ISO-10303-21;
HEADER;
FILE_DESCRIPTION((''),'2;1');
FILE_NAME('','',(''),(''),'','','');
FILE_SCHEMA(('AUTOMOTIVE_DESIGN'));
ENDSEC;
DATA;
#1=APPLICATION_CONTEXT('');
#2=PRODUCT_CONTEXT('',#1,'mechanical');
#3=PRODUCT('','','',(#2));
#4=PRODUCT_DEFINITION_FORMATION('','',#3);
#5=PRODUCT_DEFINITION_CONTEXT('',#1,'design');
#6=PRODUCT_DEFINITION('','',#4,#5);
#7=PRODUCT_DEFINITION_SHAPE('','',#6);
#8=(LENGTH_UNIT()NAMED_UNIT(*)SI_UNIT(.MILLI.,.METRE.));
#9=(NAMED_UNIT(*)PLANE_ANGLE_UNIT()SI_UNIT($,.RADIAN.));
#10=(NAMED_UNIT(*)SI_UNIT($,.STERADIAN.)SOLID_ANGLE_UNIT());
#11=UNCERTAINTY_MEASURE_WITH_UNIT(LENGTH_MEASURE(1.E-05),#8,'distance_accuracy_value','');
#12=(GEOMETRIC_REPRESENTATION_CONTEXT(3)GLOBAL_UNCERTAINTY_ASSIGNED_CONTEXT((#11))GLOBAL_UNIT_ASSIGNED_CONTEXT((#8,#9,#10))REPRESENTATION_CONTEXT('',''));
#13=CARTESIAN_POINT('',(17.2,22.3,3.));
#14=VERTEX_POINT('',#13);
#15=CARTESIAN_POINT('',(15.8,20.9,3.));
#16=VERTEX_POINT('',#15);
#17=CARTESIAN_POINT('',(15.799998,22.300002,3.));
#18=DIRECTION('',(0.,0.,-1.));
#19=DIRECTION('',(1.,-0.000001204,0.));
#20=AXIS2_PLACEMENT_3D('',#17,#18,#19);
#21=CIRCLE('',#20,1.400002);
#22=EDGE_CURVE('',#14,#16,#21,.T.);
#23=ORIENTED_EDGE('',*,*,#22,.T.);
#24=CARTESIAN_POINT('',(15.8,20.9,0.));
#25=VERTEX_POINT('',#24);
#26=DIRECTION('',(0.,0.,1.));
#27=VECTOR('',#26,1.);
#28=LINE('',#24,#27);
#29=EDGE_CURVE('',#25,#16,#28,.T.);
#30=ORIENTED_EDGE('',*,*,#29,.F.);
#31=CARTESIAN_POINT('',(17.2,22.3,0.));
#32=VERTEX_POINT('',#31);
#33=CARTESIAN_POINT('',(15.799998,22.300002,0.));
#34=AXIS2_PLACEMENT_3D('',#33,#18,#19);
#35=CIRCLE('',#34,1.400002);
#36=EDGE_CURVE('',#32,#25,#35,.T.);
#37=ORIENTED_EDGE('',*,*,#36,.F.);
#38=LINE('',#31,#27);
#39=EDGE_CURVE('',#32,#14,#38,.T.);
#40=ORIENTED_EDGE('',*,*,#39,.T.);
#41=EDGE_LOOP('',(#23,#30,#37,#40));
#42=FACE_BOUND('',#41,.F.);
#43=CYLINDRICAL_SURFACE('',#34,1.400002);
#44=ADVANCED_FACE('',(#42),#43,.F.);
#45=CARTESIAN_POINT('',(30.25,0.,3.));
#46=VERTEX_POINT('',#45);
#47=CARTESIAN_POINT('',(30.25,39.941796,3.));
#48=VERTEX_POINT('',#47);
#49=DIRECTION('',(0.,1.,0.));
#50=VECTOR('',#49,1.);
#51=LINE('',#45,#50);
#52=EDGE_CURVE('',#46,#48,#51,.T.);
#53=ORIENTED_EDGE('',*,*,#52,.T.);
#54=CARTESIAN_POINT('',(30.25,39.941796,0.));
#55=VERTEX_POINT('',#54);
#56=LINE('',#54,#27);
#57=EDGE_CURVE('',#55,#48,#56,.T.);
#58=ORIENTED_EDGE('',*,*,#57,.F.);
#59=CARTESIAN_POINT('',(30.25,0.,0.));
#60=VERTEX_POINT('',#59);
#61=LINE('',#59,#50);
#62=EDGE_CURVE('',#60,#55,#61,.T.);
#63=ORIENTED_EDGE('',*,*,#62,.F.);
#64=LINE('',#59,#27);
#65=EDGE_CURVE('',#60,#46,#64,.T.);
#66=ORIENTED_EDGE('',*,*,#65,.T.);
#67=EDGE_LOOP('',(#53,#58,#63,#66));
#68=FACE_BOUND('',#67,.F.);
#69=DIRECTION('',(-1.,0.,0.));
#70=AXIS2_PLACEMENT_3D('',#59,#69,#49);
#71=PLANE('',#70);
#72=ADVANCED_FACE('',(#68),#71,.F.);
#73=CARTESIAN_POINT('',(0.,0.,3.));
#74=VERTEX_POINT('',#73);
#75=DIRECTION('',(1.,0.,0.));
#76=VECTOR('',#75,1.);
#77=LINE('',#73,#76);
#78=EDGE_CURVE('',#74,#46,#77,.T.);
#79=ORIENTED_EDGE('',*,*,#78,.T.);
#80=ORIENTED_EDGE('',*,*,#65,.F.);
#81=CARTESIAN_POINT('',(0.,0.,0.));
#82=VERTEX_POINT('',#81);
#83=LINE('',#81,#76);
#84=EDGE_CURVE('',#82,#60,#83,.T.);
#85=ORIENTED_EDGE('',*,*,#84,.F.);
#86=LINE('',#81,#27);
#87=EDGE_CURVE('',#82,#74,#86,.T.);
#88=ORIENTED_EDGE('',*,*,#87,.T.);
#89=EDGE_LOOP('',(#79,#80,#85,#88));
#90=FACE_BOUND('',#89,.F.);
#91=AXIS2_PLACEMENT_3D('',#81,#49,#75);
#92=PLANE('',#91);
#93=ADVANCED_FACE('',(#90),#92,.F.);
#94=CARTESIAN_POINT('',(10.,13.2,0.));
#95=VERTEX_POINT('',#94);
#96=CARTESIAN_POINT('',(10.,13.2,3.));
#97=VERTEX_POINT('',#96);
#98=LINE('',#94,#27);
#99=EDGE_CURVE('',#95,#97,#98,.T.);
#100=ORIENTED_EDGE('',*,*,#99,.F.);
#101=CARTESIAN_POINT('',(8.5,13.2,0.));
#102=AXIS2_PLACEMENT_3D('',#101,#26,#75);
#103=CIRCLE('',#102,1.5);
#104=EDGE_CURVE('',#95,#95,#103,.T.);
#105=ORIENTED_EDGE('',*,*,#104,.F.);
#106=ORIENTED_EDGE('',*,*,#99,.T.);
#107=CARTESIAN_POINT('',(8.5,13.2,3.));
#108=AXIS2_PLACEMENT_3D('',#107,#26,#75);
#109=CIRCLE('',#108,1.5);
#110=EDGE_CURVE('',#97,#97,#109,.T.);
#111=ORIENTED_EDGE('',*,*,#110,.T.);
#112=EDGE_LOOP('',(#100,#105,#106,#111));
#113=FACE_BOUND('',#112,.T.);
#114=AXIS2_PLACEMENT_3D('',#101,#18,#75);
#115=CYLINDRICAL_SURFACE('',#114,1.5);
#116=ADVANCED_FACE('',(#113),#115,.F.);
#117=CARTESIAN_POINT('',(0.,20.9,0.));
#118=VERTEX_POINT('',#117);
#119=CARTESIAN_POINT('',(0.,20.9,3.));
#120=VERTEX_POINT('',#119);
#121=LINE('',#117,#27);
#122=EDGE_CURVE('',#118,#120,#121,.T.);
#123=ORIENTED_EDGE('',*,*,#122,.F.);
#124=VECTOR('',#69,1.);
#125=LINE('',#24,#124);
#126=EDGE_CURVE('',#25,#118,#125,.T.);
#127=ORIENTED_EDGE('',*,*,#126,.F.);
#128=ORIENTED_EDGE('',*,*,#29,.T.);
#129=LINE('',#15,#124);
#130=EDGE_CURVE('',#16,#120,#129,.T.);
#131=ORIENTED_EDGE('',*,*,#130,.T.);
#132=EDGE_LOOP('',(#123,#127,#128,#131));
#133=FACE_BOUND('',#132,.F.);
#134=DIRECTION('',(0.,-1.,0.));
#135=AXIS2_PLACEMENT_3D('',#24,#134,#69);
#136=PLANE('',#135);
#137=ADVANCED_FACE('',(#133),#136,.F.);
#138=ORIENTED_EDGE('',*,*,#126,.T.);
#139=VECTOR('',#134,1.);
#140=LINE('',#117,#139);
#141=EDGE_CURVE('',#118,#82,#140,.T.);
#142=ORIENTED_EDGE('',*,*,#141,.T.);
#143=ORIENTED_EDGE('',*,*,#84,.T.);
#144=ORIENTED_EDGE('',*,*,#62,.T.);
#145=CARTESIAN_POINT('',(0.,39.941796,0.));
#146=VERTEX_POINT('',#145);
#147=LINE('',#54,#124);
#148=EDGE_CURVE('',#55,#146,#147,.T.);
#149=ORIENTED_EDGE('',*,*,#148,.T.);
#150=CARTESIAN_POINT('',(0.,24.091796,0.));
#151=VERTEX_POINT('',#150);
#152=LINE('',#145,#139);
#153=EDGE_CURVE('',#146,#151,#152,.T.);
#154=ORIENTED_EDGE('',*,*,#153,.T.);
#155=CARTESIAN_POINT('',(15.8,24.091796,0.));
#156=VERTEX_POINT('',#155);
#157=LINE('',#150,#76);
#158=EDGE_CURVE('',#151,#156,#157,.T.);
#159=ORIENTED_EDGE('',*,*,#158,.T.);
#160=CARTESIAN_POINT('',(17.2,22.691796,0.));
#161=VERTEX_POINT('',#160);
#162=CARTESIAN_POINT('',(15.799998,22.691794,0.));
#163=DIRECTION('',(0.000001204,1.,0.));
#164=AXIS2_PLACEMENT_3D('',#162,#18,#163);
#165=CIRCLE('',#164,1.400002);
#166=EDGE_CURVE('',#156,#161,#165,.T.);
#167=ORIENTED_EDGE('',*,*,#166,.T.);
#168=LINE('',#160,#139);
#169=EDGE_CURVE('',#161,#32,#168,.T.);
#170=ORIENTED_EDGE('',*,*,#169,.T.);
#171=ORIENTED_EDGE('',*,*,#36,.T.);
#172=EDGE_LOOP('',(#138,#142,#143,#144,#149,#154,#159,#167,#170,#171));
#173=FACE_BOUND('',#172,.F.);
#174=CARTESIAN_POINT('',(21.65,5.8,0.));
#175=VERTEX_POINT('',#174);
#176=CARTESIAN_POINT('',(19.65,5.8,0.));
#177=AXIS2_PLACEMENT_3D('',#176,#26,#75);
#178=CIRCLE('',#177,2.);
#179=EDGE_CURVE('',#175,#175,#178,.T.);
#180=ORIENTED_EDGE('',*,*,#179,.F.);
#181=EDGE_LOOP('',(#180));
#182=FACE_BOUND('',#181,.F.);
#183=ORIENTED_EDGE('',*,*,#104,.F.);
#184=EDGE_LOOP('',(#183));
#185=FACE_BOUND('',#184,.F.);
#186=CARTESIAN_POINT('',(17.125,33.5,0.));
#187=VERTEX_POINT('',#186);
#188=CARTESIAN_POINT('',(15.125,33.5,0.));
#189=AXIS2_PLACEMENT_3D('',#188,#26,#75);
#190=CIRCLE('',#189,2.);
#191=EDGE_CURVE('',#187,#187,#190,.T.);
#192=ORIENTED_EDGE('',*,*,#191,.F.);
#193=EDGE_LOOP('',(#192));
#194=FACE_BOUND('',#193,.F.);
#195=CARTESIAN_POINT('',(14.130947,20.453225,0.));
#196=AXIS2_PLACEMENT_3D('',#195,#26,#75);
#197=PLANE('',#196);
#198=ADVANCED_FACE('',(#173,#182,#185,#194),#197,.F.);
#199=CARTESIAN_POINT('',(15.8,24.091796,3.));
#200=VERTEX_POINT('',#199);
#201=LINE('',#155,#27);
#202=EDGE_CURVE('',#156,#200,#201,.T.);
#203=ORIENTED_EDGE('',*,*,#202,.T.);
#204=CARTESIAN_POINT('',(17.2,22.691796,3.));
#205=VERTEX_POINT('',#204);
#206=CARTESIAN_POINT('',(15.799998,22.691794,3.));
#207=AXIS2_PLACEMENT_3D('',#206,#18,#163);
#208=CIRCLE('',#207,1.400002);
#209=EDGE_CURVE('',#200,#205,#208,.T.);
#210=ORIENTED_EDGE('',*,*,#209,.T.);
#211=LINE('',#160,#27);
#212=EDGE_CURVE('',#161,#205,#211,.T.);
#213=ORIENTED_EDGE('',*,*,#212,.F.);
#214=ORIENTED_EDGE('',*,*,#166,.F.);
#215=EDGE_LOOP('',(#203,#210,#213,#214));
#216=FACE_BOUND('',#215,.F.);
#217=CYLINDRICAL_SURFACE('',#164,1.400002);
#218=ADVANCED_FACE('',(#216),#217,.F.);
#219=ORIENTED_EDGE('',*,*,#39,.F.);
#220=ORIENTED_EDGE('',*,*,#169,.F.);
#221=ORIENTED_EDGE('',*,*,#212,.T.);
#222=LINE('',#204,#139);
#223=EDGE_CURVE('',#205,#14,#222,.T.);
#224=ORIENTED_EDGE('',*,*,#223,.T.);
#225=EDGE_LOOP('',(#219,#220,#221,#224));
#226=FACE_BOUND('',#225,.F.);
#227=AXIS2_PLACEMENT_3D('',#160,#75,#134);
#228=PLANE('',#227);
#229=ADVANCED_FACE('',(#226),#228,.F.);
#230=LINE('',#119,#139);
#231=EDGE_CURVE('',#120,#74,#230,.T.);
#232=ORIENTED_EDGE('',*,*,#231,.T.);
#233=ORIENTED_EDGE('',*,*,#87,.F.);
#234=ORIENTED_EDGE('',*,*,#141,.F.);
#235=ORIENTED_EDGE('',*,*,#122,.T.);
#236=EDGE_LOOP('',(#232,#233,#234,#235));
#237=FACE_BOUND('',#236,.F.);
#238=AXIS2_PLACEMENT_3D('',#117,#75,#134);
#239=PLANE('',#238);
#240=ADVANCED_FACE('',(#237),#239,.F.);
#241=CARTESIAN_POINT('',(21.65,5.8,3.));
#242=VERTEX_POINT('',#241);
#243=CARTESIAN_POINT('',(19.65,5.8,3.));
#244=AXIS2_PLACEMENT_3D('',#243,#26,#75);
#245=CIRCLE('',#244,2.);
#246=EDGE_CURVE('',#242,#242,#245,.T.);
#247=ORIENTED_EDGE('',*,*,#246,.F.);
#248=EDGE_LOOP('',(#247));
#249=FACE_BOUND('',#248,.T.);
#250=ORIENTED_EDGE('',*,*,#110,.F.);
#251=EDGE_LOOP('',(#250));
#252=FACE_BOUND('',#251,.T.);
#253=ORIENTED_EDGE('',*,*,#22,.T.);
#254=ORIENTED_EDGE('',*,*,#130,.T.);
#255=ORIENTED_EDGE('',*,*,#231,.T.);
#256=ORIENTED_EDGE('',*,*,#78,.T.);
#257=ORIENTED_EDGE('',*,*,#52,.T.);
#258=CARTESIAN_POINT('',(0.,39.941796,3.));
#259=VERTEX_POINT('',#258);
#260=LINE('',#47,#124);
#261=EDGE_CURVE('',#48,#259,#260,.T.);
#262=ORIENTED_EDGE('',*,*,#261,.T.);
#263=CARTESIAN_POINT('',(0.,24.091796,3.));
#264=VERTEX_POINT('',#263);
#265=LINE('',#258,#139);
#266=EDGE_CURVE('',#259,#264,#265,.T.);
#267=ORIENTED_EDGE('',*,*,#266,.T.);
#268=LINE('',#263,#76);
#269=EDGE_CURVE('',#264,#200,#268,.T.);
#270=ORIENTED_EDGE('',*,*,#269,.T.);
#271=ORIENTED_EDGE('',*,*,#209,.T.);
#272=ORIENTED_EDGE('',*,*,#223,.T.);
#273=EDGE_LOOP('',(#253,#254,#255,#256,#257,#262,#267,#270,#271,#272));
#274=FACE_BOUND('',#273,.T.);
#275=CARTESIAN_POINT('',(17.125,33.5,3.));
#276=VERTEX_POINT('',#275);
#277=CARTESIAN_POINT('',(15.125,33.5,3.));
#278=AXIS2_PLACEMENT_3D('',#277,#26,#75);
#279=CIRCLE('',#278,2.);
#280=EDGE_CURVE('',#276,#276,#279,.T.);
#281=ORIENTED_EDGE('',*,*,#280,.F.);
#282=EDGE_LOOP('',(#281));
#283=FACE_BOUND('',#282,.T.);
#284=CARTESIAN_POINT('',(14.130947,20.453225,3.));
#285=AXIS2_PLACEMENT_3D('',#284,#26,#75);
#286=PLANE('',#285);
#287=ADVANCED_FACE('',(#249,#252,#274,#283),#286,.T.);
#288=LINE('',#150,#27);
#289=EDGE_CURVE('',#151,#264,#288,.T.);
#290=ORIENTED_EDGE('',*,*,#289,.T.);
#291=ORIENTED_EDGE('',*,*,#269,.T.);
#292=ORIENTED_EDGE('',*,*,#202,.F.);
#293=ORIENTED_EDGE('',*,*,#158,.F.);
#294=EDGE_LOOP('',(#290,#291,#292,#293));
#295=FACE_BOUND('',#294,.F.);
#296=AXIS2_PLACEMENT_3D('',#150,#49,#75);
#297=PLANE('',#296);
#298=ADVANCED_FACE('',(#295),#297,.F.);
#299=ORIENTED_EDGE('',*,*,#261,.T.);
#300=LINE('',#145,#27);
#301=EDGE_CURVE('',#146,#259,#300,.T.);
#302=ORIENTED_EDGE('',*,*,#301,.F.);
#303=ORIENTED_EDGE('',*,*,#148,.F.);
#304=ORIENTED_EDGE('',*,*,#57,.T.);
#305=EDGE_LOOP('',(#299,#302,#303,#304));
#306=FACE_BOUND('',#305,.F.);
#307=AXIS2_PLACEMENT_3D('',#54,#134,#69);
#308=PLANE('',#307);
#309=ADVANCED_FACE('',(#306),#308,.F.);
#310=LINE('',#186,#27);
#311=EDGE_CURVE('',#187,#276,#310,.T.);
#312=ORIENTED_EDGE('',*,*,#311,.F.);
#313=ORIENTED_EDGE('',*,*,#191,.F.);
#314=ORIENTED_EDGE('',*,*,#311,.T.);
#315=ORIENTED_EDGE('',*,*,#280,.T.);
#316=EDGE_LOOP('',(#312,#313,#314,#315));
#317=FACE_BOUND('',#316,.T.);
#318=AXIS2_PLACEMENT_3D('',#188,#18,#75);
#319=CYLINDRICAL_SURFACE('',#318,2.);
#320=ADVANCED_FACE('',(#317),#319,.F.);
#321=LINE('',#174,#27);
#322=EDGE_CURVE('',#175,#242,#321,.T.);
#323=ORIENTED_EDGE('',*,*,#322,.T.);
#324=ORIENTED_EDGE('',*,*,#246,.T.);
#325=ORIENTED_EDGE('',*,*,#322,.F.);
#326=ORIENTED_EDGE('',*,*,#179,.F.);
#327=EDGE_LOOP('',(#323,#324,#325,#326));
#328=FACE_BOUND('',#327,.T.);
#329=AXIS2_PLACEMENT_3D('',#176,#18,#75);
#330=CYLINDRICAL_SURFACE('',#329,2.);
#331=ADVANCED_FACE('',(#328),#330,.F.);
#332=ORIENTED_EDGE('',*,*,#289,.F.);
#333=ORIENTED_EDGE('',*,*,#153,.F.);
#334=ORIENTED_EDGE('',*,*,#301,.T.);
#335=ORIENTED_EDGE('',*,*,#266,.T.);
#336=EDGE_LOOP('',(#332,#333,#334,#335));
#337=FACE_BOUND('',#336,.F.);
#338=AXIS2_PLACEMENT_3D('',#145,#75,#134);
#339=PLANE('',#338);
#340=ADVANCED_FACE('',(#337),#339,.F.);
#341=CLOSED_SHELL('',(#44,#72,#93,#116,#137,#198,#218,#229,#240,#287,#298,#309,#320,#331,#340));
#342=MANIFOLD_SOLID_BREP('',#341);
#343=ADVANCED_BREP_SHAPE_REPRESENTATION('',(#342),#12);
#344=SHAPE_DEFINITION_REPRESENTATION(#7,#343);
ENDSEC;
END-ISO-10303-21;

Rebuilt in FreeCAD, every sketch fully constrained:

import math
import FreeCAD as App
import Part
import Sketcher
from FreeCAD import Vector

doc = App.newDocument("Part")
params = doc.addObject("Spreadsheet::Sheet", "Params")
for row, (alias, value) in enumerate([
    ("sketch1_diameter", "3 mm"),
    ("sketch1_diameter2", "4 mm"),
    ("sketch1_radius", "1.400002 mm"),
    ("sketch1_width", "15.8 mm"),
    ("sketch1_height", "20.9 mm"),
    ("pad1_length", "3 mm"),
], start=1):
    params.set(f"A{row}", alias)
    params.set(f"B{row}", "=" + value)
    params.setAlias(f"B{row}", alias)

body = doc.addObject("PartDesign::Body", "Body")

sketch1 = body.newObject("Sketcher::SketchObject", "Sketch")
sketch1.AttachmentSupport = (doc.getObject("XY_Plane"), [""])
sketch1.MapMode = "FlatFace"
sketch1.addGeometry([
    Part.LineSegment(Vector(0, 20.9, 0), Vector(0, 0, 0)),
    Part.LineSegment(Vector(0, 0, 0), Vector(30.25, 0, 0)),
    Part.LineSegment(Vector(30.25, 0, 0), Vector(30.25, 39.94, 0)),
    Part.LineSegment(Vector(30.25, 39.94, 0), Vector(0, 39.94, 0)),
    Part.LineSegment(Vector(0, 39.94, 0), Vector(0, 24.09, 0)),
    Part.LineSegment(Vector(0, 24.09, 0), Vector(15.8, 24.09, 0)),
    Part.ArcOfCircle(Part.Circle(Vector(15.8, 22.69, 0), Vector(0, 0, 1), 1.4), math.radians(0), math.radians(90)),
    Part.LineSegment(Vector(17.2, 22.69, 0), Vector(17.2, 22.3, 0)),
    Part.ArcOfCircle(Part.Circle(Vector(15.8, 22.3, 0), Vector(0, 0, 1), 1.4), math.radians(-90), math.radians(0)),
    Part.LineSegment(Vector(15.8, 20.9, 0), Vector(0, 20.9, 0)),
    Part.Circle(Vector(8.5, 13.2, 0), Vector(0, 0, 1), 1.5),
    Part.Circle(Vector(19.65, 5.8, 0), Vector(0, 0, 1), 2),
    Part.Circle(Vector(15.12, 33.5, 0), Vector(0, 0, 1), 2),
], False)
sketch1.addConstraint([
    Sketcher.Constraint("Coincident", 0, 2, 1, 1),
    Sketcher.Constraint("Coincident", 1, 2, 2, 1),
    Sketcher.Constraint("Coincident", 2, 2, 3, 1),
    Sketcher.Constraint("Coincident", 3, 2, 4, 1),
    Sketcher.Constraint("Coincident", 4, 2, 5, 1),
    Sketcher.Constraint("Tangent", 5, 2, 6, 2),
    Sketcher.Constraint("Tangent", 6, 1, 7, 1),
    Sketcher.Constraint("Tangent", 7, 2, 8, 2),
    Sketcher.Constraint("Tangent", 8, 1, 9, 1),
    Sketcher.Constraint("Coincident", 9, 2, 0, 1),
    Sketcher.Constraint("Vertical", 0),
    Sketcher.Constraint("Horizontal", 1),
    Sketcher.Constraint("Vertical", 2),
    Sketcher.Constraint("Horizontal", 3),
    Sketcher.Constraint("Vertical", 4),
    Sketcher.Constraint("Horizontal", 5),
    Sketcher.Constraint("Vertical", 7),
    Sketcher.Constraint("Horizontal", 9),
    Sketcher.Constraint("Coincident", 0, 2, -1, 1),
    Sketcher.Constraint("Equal", 6, 8),
    Sketcher.Constraint("Equal", 11, 12),
    Sketcher.Constraint("PointOnObject", 3, 2, -2),
    Sketcher.Constraint("Diameter", 10, 3.0),
    Sketcher.Constraint("Diameter", 11, 4.0),
    Sketcher.Constraint("Radius", 6, 1.400002),
    Sketcher.Constraint("DistanceX", 5, 1, 5, 2, 15.8),
    Sketcher.Constraint("DistanceY", 0, 2, 0, 1, 20.9),
    Sketcher.Constraint("DistanceX", 1, 1, 1, 2, 30.25),
    Sketcher.Constraint("DistanceY", 4, 2, 4, 1, 15.85),
    Sketcher.Constraint("DistanceX", -1, 1, 10, 3, 8.5),
    Sketcher.Constraint("DistanceY", -1, 1, 10, 3, 13.2),
    Sketcher.Constraint("DistanceY", -1, 1, 11, 3, 5.8),
    Sketcher.Constraint("DistanceY", -1, 1, 12, 3, 33.5),
    Sketcher.Constraint("DistanceX", 11, 3, 1, 2, 10.6),
    Sketcher.Constraint("DistanceX", -1, 1, 12, 3, 15.125),
    Sketcher.Constraint("DistanceY", 2, 1, 2, 2, 39.941796),
])
sketch1.setExpression("Constraints[22]", "Params.sketch1_diameter")
sketch1.setExpression("Constraints[23]", "Params.sketch1_diameter2")
sketch1.setExpression("Constraints[24]", "Params.sketch1_radius")
sketch1.setExpression("Constraints[25]", "Params.sketch1_width")
sketch1.setExpression("Constraints[26]", "Params.sketch1_height")
pad1 = body.newObject("PartDesign::Pad", "Pad")
pad1.Profile = sketch1
pad1.setExpression("Length", "Params.pad1_length")

doc.recompute()
